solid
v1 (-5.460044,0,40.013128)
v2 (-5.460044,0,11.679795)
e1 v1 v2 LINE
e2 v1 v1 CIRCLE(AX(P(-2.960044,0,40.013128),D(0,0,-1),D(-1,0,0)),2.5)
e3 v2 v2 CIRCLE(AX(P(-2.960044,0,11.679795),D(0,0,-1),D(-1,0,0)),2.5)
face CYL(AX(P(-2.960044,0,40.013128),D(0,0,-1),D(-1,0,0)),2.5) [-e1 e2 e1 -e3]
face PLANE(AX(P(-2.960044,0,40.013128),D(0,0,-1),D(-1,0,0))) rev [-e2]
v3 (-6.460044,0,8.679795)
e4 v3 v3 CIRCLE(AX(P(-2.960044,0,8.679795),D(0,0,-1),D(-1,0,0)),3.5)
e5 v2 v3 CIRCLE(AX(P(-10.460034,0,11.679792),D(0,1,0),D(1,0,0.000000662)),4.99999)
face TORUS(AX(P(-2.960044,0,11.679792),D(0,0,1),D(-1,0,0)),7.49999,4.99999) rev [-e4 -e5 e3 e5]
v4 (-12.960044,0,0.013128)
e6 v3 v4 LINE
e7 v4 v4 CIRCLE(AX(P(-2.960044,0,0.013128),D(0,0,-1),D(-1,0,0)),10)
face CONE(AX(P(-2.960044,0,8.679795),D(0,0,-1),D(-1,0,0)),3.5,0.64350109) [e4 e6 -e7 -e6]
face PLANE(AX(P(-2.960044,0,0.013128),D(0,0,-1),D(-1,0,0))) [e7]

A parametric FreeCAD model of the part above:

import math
import FreeCAD as App
import Part
import Sketcher

V = App.Vector

doc = App.newDocument("Part")
params = doc.addObject("Spreadsheet::Sheet", "Params")
for row, (alias, value) in enumerate([
    ("sketch1_width", "10 mm"),
    ("sketch1_height", "40 mm"),
    ("sketch1_width2", "2.5 mm"),
    ("revolution_angle", "360 deg"),
], start=1):
    params.set(f"A{row}", alias)
    params.set(f"B{row}", "=" + value)
    params.setAlias(f"B{row}", alias)

body = doc.addObject("PartDesign::Body", "Body")

# Sketch on XZ plane
sketch1 = body.newObject("Sketcher::SketchObject", "Sketch")
sketch1.AttachmentSupport = (doc.getObject("XZ_Plane"), [""])
sketch1.MapMode = "FlatFace"
sketch1.addGeometry([
    Part.LineSegment(V(-3, 40, 0), V(-5.5, 40, 0)),  # 0
    Part.LineSegment(V(-5.5, 40, 0), V(-5.5, 11.7, 0)),  # 1
    Part.ArcOfCircle(Part.Circle(V(-10.5, 11.7, 0), V(0, 0, 1), 5), math.radians(-37), math.radians(0)),  # 2
    Part.LineSegment(V(-6.5, 8.7, 0), V(-13, 0, 0)),  # 3
    Part.LineSegment(V(-13, 0, 0), V(-3, 0, 0)),  # 4
    Part.LineSegment(V(-3, 0, 0), V(-3, 40, 0)),  # 5
], False)
sketch1.addGeometry(Part.LineSegment(V(-3, 40, 0), V(-3, 0, 0)), True)  # axis
sketch1.addConstraint([
    Sketcher.Constraint("Coincident", 0, 2, 1, 1),
    Sketcher.Constraint("Tangent", 1, 2, 2, 2),
    Sketcher.Constraint("Tangent", 2, 1, 3, 1),
    Sketcher.Constraint("Coincident", 3, 2, 4, 1),
    Sketcher.Constraint("Coincident", 4, 2, 5, 1),
    Sketcher.Constraint("Coincident", 5, 2, 0, 1),
    Sketcher.Constraint("Horizontal", 0),
    Sketcher.Constraint("Vertical", 1),
    Sketcher.Constraint("Horizontal", 4),
    Sketcher.Constraint("Vertical", 5),
    Sketcher.Constraint("Vertical", 6),
    Sketcher.Constraint("Coincident", 6, 1, 5, 2),
    Sketcher.Constraint("Horizontal", 3, 2, 6, 2),
    Sketcher.Constraint("DistanceX", 4, 1, 4, 2, 10.0),
    Sketcher.Constraint("DistanceY", 5, 1, 5, 2, 40.0),
    Sketcher.Constraint("DistanceX", 0, 2, 0, 1, 2.5),
    Sketcher.Constraint("DistanceX", 2, 1, 1, 2, 1.0),
    Sketcher.Constraint("DistanceY", 2, 1, 1, 2, 3.0),
    Sketcher.Constraint("DistanceY", -1, 1, 2, 3, 11.679792),
    Sketcher.Constraint("DistanceX", 2, 3, -1, 1, 10.460034),
])
sketch1.setExpression("Constraints[13]", "Params.sketch1_width")
sketch1.setExpression("Constraints[14]", "Params.sketch1_height")
sketch1.setExpression("Constraints[15]", "Params.sketch1_width2")
revolution = body.newObject("PartDesign::Revolution", "Revolution")
revolution.Profile = sketch1
revolution.ReferenceAxis = (sketch1, ["Axis0"])
revolution.setExpression("Angle", "Params.revolution_angle")

doc.recompute()
